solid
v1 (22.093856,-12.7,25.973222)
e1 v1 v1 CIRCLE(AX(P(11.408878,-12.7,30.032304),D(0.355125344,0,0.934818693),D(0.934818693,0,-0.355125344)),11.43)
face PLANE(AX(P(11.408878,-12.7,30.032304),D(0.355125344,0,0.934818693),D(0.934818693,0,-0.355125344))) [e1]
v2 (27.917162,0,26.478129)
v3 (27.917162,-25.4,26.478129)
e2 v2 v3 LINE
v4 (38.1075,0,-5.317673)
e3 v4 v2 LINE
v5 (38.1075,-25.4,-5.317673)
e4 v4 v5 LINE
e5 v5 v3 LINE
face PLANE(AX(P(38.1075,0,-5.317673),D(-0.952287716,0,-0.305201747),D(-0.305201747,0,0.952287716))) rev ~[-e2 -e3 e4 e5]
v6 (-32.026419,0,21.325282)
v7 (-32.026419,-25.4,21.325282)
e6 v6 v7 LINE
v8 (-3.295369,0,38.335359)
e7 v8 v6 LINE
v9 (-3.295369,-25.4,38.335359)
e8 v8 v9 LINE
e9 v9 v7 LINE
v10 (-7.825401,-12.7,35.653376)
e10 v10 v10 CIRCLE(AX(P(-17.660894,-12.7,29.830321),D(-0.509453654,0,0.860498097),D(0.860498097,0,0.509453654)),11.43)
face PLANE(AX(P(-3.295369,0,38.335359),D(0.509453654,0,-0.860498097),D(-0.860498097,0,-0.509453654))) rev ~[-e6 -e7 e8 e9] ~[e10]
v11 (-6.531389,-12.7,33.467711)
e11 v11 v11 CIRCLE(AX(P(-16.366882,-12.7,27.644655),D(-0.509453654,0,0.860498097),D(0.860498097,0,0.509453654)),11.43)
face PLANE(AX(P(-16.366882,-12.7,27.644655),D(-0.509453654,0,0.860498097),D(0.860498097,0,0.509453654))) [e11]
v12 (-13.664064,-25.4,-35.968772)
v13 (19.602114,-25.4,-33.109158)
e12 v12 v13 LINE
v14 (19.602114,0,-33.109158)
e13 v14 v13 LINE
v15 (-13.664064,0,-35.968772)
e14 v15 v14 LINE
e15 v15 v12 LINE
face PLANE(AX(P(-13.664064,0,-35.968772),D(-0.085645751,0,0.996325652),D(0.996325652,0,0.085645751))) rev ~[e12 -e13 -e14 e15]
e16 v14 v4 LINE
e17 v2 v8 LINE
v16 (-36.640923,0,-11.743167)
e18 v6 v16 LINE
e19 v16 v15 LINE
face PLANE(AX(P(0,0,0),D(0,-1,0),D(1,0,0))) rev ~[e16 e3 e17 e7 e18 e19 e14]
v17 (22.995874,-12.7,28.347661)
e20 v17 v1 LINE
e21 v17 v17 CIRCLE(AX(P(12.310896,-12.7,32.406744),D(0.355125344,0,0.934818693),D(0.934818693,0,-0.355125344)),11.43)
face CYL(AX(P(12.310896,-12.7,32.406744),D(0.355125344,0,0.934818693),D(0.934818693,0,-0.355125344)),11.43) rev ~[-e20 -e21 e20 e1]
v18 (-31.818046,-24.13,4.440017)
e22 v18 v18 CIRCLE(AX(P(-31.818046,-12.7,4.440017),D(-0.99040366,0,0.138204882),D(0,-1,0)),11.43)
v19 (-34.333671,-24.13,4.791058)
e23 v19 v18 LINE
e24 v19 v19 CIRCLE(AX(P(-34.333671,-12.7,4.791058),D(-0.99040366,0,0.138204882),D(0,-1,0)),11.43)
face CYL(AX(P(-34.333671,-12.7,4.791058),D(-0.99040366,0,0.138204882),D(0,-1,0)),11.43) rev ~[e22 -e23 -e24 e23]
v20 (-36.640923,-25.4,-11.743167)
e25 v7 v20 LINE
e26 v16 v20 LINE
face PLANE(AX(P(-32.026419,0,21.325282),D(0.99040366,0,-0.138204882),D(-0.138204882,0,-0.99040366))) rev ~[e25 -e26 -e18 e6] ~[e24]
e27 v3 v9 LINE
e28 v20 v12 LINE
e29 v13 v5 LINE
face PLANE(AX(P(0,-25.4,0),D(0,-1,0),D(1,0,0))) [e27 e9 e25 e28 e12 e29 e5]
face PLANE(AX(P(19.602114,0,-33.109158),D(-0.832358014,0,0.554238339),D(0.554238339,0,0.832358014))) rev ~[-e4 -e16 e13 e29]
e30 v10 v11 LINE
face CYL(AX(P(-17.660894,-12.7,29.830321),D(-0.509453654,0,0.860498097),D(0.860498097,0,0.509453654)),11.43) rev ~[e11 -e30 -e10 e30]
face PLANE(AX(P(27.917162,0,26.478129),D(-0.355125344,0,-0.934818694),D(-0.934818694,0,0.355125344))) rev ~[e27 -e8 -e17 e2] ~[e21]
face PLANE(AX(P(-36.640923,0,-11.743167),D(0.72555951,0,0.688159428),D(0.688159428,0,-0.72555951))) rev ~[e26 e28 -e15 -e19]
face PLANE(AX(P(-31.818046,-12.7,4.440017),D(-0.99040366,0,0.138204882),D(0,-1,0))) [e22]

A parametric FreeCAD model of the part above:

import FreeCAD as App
import Part
import Sketcher
from FreeCAD import Vector
Q = App.Units.Quantity

doc = App.newDocument("Part")
params = doc.addObject("Spreadsheet::Sheet", "Params")
for row, (alias, value) in enumerate([
    ("pad1_length", "1 in"),
    ("sketch2_diameter", "0.9 in"),
    ("pocket1_length", "0.1 in"),
    ("sketch3_diameter", "0.9 in"),
    ("pocket2_length", "0.1 in"),
    ("sketch4_diameter", "0.9 in"),
    ("pocket3_length", "0.1 in"),
], start=1):
    params.set(f"A{row}", alias)
    params.set(f"B{row}", "=" + value)
    params.setAlias(f"B{row}", alias)

body = doc.addObject("PartDesign::Body", "Body")

sketch1 = body.newObject("Sketcher::SketchObject", "Sketch")
sketch1.AttachmentSupport = (doc.getObject("XZ_Plane"), [""])
sketch1.MapMode = "FlatFace"
sketch1.addGeometry(Part.LineSegment(Vector(38, -5, 0), Vector(28, 26, 0)), False)
sketch1.addGeometry(Part.LineSegment(Vector(28, 26, 0), Vector(-3, 38, 0)), False)
sketch1.addGeometry(Part.LineSegment(Vector(-3, 38, 0), Vector(-32, 21, 0)), False)
sketch1.addGeometry(Part.LineSegment(Vector(-32, 21, 0), Vector(-37, -12, 0)), False)
sketch1.addGeometry(Part.LineSegment(Vector(-37, -12, 0), Vector(-14, -36, 0)), False)
sketch1.addGeometry(Part.LineSegment(Vector(-14, -36, 0), Vector(20, -33, 0)), False)
sketch1.addGeometry(Part.LineSegment(Vector(20, -33, 0), Vector(38, -5, 0)), False)
sketch1.addConstraint(Sketcher.Constraint("Coincident", 0, 2, 1, 1))
sketch1.addConstraint(Sketcher.Constraint("Coincident", 1, 2, 2, 1))
sketch1.addConstraint(Sketcher.Constraint("Coincident", 2, 2, 3, 1))
sketch1.addConstraint(Sketcher.Constraint("Coincident", 3, 2, 4, 1))
sketch1.addConstraint(Sketcher.Constraint("Coincident", 4, 2, 5, 1))
sketch1.addConstraint(Sketcher.Constraint("Coincident", 5, 2, 6, 1))
sketch1.addConstraint(Sketcher.Constraint("Coincident", 6, 2, 0, 1))
sketch1.addConstraint(Sketcher.Constraint("Equal", 0, 1))
sketch1.addConstraint(Sketcher.Constraint("Equal", 1, 2))
sketch1.addConstraint(Sketcher.Constraint("Equal", 2, 3))
sketch1.addConstraint(Sketcher.Constraint("Equal", 3, 4))
sketch1.addConstraint(Sketcher.Constraint("Equal", 4, 5))
sketch1.addConstraint(Sketcher.Constraint("Equal", 5, 6))
sketch1.addConstraint(Sketcher.Constraint("DistanceX", -1, 1, 6, 2, 38.1075))
sketch1.addConstraint(Sketcher.Constraint("DistanceY", 4, 2, 0, 2, 62.4469))
sketch1.addConstraint(Sketcher.Constraint("DistanceY", 6, 2, 0, 2, 31.795801))
sketch1.addConstraint(Sketcher.Constraint("Distance", 0, 33.38886))
sketch1.addConstraint(Sketcher.Constraint("DistanceY", -1, 1, 0, 2, 26.478129))
sketch1.addConstraint(Sketcher.Constraint("DistanceX", 1, 2, -1, 1, 3.295369))
sketch1.addConstraint(Sketcher.Constraint("DistanceX", 2, 2, -1, 1, 32.026419))
sketch1.addConstraint(Sketcher.Constraint("DistanceY", 3, 2, 2, 2, 33.068449))
pad1 = body.newObject("PartDesign::Pad", "Pad")
pad1.Profile = sketch1
pad1.setExpression("Length", "Params.pad1_length")

sketch2 = body.newObject("Sketcher::SketchObject", "Sketch001")
sketch2.Placement = App.Placement(Vector(-34.333671, 0, 4.791058), App.Rotation(Vector(0, -1, 0), Vector(0.138204882, 0, 0.99040366), Vector(-0.99040366, 0, 0.138204882), "ZXY"))
sketch2.addGeometry(Part.Circle(Vector(13, 0, 0), Vector(0, 0, 1), 11), False)
sketch2.addConstraint(Sketcher.Constraint("PointOnObject", 0, 3, -1))
sketch2.addConstraint(Sketcher.Constraint("Diameter", 0, Q("0.9 in")))
sketch2.addConstraint(Sketcher.Constraint("DistanceX", -1, 1, 0, 3, Q("0.5 in")))
sketch2.setExpression("Constraints[1]", "Params.sketch2_diameter")
pocket1 = body.newObject("PartDesign::Pocket", "Pocket")
pocket1.Profile = sketch2
pocket1.setExpression("Length", "Params.pocket1_length")

sketch3 = body.newObject("Sketcher::SketchObject", "Sketch002")
sketch3.Placement = App.Placement(Vector(-17.660894, 0, 29.830321), App.Rotation(Vector(0.860498097, 0, 0.509453654), Vector(0, 1.000000001, 0), Vector(-0.509453654, 0, 0.860498097), "ZXY"))
sketch3.addGeometry(Part.Circle(Vector(0, -13, 0), Vector(0, 0, 1), 11), False)
sketch3.addConstraint(Sketcher.Constraint("PointOnObject", 0, 3, -2))
sketch3.addConstraint(Sketcher.Constraint("Diameter", 0, Q("0.9 in")))
sketch3.addConstraint(Sketcher.Constraint("DistanceY", 0, 3, -1, 1, Q("0.5 in")))
sketch3.setExpression("Constraints[1]", "Params.sketch3_diameter")
pocket2 = body.newObject("PartDesign::Pocket", "Pocket001")
pocket2.Profile = sketch3
pocket2.setExpression("Length", "Params.pocket2_length")

sketch4 = body.newObject("Sketcher::SketchObject", "Sketch003")
sketch4.Placement = App.Placement(Vector(12.310896, 0, 32.406744), App.Rotation(Vector(0.934818693, 0, -0.355125344), Vector(0, 0.999999999, 0), Vector(0.355125344, 0, 0.934818693), "ZXY"))
sketch4.addGeometry(Part.Circle(Vector(0, -13, 0), Vector(0, 0, 1), 11), False)
sketch4.addConstraint(Sketcher.Constraint("PointOnObject", 0, 3, -2))
sketch4.addConstraint(Sketcher.Constraint("Diameter", 0, Q("0.9 in")))
sketch4.addConstraint(Sketcher.Constraint("DistanceY", 0, 3, -1, 1, Q("0.5 in")))
sketch4.setExpression("Constraints[1]", "Params.sketch4_diameter")
pocket3 = body.newObject("PartDesign::Pocket", "Pocket002")
pocket3.Profile = sketch4
pocket3.setExpression("Length", "Params.pocket3_length")

doc.recompute()
